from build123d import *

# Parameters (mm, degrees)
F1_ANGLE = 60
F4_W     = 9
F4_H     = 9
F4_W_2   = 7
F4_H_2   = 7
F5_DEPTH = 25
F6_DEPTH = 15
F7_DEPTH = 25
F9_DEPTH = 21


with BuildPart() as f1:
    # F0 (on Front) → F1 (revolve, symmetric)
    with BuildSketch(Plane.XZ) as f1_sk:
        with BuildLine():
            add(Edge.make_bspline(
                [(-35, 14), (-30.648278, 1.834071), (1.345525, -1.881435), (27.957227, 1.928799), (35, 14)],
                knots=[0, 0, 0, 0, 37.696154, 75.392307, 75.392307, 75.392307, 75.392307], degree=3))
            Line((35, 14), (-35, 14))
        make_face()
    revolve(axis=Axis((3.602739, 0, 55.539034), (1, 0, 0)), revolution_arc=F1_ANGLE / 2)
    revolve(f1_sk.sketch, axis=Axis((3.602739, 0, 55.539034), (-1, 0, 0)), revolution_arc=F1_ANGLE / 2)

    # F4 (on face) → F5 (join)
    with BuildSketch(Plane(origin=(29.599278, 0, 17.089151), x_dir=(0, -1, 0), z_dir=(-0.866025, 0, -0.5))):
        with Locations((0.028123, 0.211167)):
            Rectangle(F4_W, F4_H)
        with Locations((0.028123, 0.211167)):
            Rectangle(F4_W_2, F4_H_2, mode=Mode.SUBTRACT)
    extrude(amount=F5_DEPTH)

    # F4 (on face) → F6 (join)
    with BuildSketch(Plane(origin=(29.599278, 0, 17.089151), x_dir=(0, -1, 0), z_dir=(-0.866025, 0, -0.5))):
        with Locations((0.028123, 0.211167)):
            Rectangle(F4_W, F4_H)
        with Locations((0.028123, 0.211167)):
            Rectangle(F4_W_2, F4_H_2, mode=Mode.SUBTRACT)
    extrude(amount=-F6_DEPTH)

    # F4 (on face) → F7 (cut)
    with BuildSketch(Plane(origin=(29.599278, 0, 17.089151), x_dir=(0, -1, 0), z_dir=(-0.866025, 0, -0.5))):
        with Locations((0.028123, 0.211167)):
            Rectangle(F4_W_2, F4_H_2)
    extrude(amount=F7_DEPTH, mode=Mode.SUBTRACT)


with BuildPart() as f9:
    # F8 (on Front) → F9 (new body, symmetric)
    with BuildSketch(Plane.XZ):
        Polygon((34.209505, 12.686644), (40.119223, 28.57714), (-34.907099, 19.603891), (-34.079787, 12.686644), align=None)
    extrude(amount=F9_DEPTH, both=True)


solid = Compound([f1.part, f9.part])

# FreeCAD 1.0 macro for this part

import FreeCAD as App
import Part
import Sketcher
from FreeCAD import Vector


def add_polygon(sketch, points):
    """Adds a closed chain of lines whose ends are joined by coincident constraints."""
    first, n = sketch.GeometryCount, len(points)
    for a, b in zip(points, points[1:] + points[:1]):
        sketch.addGeometry(Part.LineSegment(App.Vector(*a, 0), App.Vector(*b, 0)), False)
    for i in range(n):
        sketch.addConstraint(Sketcher.Constraint("Coincident", first + i, 2, first + (i + 1) % n, 1))

doc = App.newDocument("Part")
body = doc.addObject("PartDesign::Body", "Body")

sketch1 = body.newObject("Sketcher::SketchObject", "Sketch")
sketch1.AttachmentSupport = (doc.getObject("XZ_Plane"), [""])
sketch1.MapMode = "FlatFace"
sketch1.addGeometry([
    Part.BSplineCurve([Vector(-35, 14, 0), Vector(-30.648278, 1.834071, 0), Vector(1.345525, -1.881435, 0), Vector(27.957227, 1.928799, 0), Vector(35, 14, 0)], [4, 1, 4], [0, 37.696154, 75.392307], False, 3, [1, 1, 1, 1, 1], False),
    Part.LineSegment(Vector(35, 14, 0), Vector(-35, 14, 0)),
], False)
sketch1.addGeometry(Part.LineSegment(Vector(-35, 55.539034, 0), Vector(35, 55.539034, 0)), True)
sketch1.addConstraint([
    Sketcher.Constraint("Block", 0),
    Sketcher.Constraint("Coincident", 0, 1, 1, 2),
    Sketcher.Constraint("Coincident", 1, 1, 0, 2),
    Sketcher.Constraint("Horizontal", 2),
    Sketcher.Constraint("DistanceX", 2, 1, 2, 2, 70.0),
    Sketcher.Constraint("DistanceX", 2, 1, -1, 1, 35.0),
    Sketcher.Constraint("DistanceY", -1, 1, 2, 1, 55.539034),
])
revolution = body.newObject("PartDesign::Revolution", "Revolution")
revolution.Profile = sketch1
revolution.ReferenceAxis = (sketch1, ["Axis0"])
revolution.Angle = 30

sketch2 = body.newObject("Sketcher::SketchObject", "Sketch001")
sketch2.AttachmentSupport = (doc.getObject("XZ_Plane"), [""])
sketch2.MapMode = "FlatFace"
sketch2.addGeometry([
    Part.BSplineCurve([Vector(-35, 14, 0), Vector(-30.648278, 1.834071, 0), Vector(1.345525, -1.881435, 0), Vector(27.957227, 1.928799, 0), Vector(35, 14, 0)], [4, 1, 4], [0, 37.696154, 75.392307], False, 3, [1, 1, 1, 1, 1], False),
    Part.LineSegment(Vector(35, 14, 0), Vector(-35, 14, 0)),
], False)
sketch2.addGeometry(Part.LineSegment(Vector(35, 55.539034, 0), Vector(-35, 55.539034, 0)), True)
sketch2.addConstraint([
    Sketcher.Constraint("Block", 0),
    Sketcher.Constraint("Coincident", 0, 1, 1, 2),
    Sketcher.Constraint("Coincident", 1, 1, 0, 2),
    Sketcher.Constraint("Horizontal", 2),
    Sketcher.Constraint("DistanceX", 2, 2, 2, 1, 70.0),
    Sketcher.Constraint("DistanceX", -1, 1, 2, 1, 35.0),
    Sketcher.Constraint("DistanceY", -1, 1, 2, 1, 55.539034),
])
revolution2 = body.newObject("PartDesign::Revolution", "Revolution001")
revolution2.Profile = sketch2
revolution2.ReferenceAxis = (sketch2, ["Axis0"])
revolution2.Angle = 30

sketch3 = body.newObject("Sketcher::SketchObject", "Sketch002")
sketch3.Placement = App.Placement(Vector(29.599278, 0, 17.089151), App.Rotation(Vector(0, -1, 0), Vector(-0.500000175, 0, 0.866025303), Vector(-0.866025303, 0, -0.500000175), "ZXY"))
add_polygon(sketch3, [(-4.471877, 4.711167), (-4.471877, -4.288833), (4.528123, -4.288833), (4.528123, 4.711167)])
add_polygon(sketch3, [(3.528123, -3.288833), (-3.471877, -3.288833), (-3.471877, 3.711167), (3.528123, 3.711167)])
sketch3.addConstraint([
    Sketcher.Constraint("Vertical", 0),
    Sketcher.Constraint("Horizontal", 1),
    Sketcher.Constraint("Vertical", 2),
    Sketcher.Constraint("Horizontal", 3),
    Sketcher.Constraint("Horizontal", 4),
    Sketcher.Constraint("Vertical", 5),
    Sketcher.Constraint("Horizontal", 6),
    Sketcher.Constraint("Vertical", 7),
    Sketcher.Constraint("Equal", 3, 0),
    Sketcher.Constraint("Equal", 6, 5),
    Sketcher.Constraint("DistanceX", 1, 1, 1, 2, 9.0),
    Sketcher.Constraint("DistanceX", 4, 2, 4, 1, 7.0),
    Sketcher.Constraint("DistanceX", 0, 2, 4, 2, 1.0),
    Sketcher.Constraint("DistanceY", 0, 2, 4, 2, 1.0),
    Sketcher.Constraint("DistanceX", 0, 2, -1, 1, 4.471877),
    Sketcher.Constraint("DistanceY", 0, 2, -1, 1, 4.288833),
])
pad1 = body.newObject("PartDesign::Pad", "Pad")
pad1.Profile = sketch3
pad1.Length = 25

sketch4 = body.newObject("Sketcher::SketchObject", "Sketch003")
sketch4.Placement = App.Placement(Vector(29.599278, 0, 17.089151), App.Rotation(Vector(0, -1, 0), Vector(-0.500000175, 0, 0.866025303), Vector(-0.866025303, 0, -0.500000175), "ZXY"))
add_polygon(sketch4, [(-4.471877, 4.711167), (-4.471877, -4.288833), (4.528123, -4.288833), (4.528123, 4.711167)])
add_polygon(sketch4, [(3.528123, -3.288833), (-3.471877, -3.288833), (-3.471877, 3.711167), (3.528123, 3.711167)])
sketch4.addConstraint([
    Sketcher.Constraint("Vertical", 0),
    Sketcher.Constraint("Horizontal", 1),
    Sketcher.Constraint("Vertical", 2),
    Sketcher.Constraint("Horizontal", 3),
    Sketcher.Constraint("Horizontal", 4),
    Sketcher.Constraint("Vertical", 5),
    Sketcher.Constraint("Horizontal", 6),
    Sketcher.Constraint("Vertical", 7),
    Sketcher.Constraint("Equal", 3, 0),
    Sketcher.Constraint("Equal", 6, 5),
    Sketcher.Constraint("DistanceX", 1, 1, 1, 2, 9.0),
    Sketcher.Constraint("DistanceX", 4, 2, 4, 1, 7.0),
    Sketcher.Constraint("DistanceX", 0, 2, 4, 2, 1.0),
    Sketcher.Constraint("DistanceY", 0, 2, 4, 2, 1.0),
    Sketcher.Constraint("DistanceX", 0, 2, -1, 1, 4.471877),
    Sketcher.Constraint("DistanceY", 0, 2, -1, 1, 4.288833),
])
pad2 = body.newObject("PartDesign::Pad", "Pad001")
pad2.Profile = sketch4
pad2.Length = 15
pad2.Reversed = True

sketch5 = body.newObject("Sketcher::SketchObject", "Sketch004")
sketch5.Placement = App.Placement(Vector(29.599278, 0, 17.089151), App.Rotation(Vector(0, -1, 0), Vector(-0.500000175, 0, 0.866025303), Vector(-0.866025303, 0, -0.500000175), "ZXY"))
add_polygon(sketch5, [(-3.471877, 3.711167), (-3.471877, -3.288833), (3.528123, -3.288833), (3.528123, 3.711167)])
sketch5.addConstraint([
    Sketcher.Constraint("Vertical", 0),
    Sketcher.Constraint("Horizontal", 1),
    Sketcher.Constraint("Vertical", 2),
    Sketcher.Constraint("Horizontal", 3),
    Sketcher.Constraint("Equal", 3, 0),
    Sketcher.Constraint("DistanceX", 1, 1, 1, 2, 7.0),
    Sketcher.Constraint("DistanceX", 0, 2, -1, 1, 3.471877),
    Sketcher.Constraint("DistanceY", 0, 2, -1, 1, 3.288833),
])
pocket1 = body.newObject("PartDesign::Pocket", "Pocket")
pocket1.Profile = sketch5
pocket1.Length = 25
pocket1.Reversed = True
body2 = doc.addObject("PartDesign::Body", "Body001")

sketch6 = body2.newObject("Sketcher::SketchObject", "Sketch005")
sketch6.AttachmentSupport = (doc.getObject("XZ_Plane001"), [""])
sketch6.MapMode = "FlatFace"
add_polygon(sketch6, [(34.209505, 12.686644), (40.119223, 28.57714), (-34.907099, 19.603891), (-34.079787, 12.686644)])
sketch6.addConstraint([
    Sketcher.Constraint("Horizontal", 3),
    Sketcher.Constraint("Perpendicular", 1, 2),
    Sketcher.Constraint("DistanceX", 1, 2, -1, 1, 34.907099),
    Sketcher.Constraint("Distance", 0, 16.953838),
    Sketcher.Constraint("DistanceX", 3, 1, 3, 2, 68.289292),
    Sketcher.Constraint("DistanceY", -1, 1, 0, 2, 28.57714),
    Sketcher.Constraint("DistanceY", -1, 1, 1, 2, 19.603891),
    Sketcher.Constraint("DistanceX", 1, 2, 0, 2, 75.026322),
])
pad3 = body2.newObject("PartDesign::Pad", "Pad002")
pad3.Profile = sketch6
pad3.Length = 42
pad3.Midplane = True

doc.recompute()
